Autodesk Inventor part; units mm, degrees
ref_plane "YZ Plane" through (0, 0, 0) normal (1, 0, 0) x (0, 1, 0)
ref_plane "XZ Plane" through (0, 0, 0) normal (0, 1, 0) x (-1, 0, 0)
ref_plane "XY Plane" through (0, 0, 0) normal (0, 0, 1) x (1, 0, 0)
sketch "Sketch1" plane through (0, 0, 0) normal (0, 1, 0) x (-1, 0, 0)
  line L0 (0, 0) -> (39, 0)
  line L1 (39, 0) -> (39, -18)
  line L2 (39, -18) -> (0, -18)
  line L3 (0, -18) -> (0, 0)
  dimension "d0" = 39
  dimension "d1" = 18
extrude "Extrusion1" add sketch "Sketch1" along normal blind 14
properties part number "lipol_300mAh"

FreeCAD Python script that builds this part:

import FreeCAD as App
import Part
import Sketcher
Q = App.Units.Quantity

doc = App.newDocument("Part")
params = doc.addObject("Spreadsheet::Sheet", "Params")
for row, (alias, value) in enumerate([
    ("sketch1_width", "39 mm"),
    ("sketch1_height", "18 mm"),
    ("pad1_length", "14 mm"),
], start=1):
    params.set(f"A{row}", alias)
    params.set(f"B{row}", "=" + value)
    params.setAlias(f"B{row}", alias)

body = doc.addObject("PartDesign::Body", "Body")

sketch1 = body.newObject("Sketcher::SketchObject", "Sketch")
sketch1.AttachmentSupport = (doc.getObject("XZ_Plane"), [""])
sketch1.MapMode = "FlatFace"
sketch1.addGeometry(Part.LineSegment(App.Vector(-39, 0, 0), App.Vector(0, 0, 0)), False)
sketch1.addGeometry(Part.LineSegment(App.Vector(0, 0, 0), App.Vector(0, -18, 0)), False)
sketch1.addGeometry(Part.LineSegment(App.Vector(0, -18, 0), App.Vector(-39, -18, 0)), False)
sketch1.addGeometry(Part.LineSegment(App.Vector(-39, -18, 0), App.Vector(-39, 0, 0)), False)
sketch1.addConstraint(Sketcher.Constraint("Coincident", 0, 2, 1, 1))
sketch1.addConstraint(Sketcher.Constraint("Coincident", 1, 2, 2, 1))
sketch1.addConstraint(Sketcher.Constraint("Coincident", 2, 2, 3, 1))
sketch1.addConstraint(Sketcher.Constraint("Coincident", 3, 2, 0, 1))
sketch1.addConstraint(Sketcher.Constraint("Horizontal", 0))
sketch1.addConstraint(Sketcher.Constraint("Vertical", 1))
sketch1.addConstraint(Sketcher.Constraint("Horizontal", 2))
sketch1.addConstraint(Sketcher.Constraint("Vertical", 3))
sketch1.addConstraint(Sketcher.Constraint("Coincident", 0, 2, -1, 1))
sketch1.addConstraint(Sketcher.Constraint("DistanceX", 0, 1, 0, 2, Q("39 mm")))
sketch1.addConstraint(Sketcher.Constraint("DistanceY", 1, 2, 1, 1, Q("18 mm")))
sketch1.setExpression("Constraints[9]", "Params.sketch1_width")
sketch1.setExpression("Constraints[10]", "Params.sketch1_height")
pad1 = body.newObject("PartDesign::Pad", "Pad")
pad1.Profile = sketch1
pad1.setExpression("Length", "Params.pad1_length")
pad1.Reversed = True

doc.recompute()
